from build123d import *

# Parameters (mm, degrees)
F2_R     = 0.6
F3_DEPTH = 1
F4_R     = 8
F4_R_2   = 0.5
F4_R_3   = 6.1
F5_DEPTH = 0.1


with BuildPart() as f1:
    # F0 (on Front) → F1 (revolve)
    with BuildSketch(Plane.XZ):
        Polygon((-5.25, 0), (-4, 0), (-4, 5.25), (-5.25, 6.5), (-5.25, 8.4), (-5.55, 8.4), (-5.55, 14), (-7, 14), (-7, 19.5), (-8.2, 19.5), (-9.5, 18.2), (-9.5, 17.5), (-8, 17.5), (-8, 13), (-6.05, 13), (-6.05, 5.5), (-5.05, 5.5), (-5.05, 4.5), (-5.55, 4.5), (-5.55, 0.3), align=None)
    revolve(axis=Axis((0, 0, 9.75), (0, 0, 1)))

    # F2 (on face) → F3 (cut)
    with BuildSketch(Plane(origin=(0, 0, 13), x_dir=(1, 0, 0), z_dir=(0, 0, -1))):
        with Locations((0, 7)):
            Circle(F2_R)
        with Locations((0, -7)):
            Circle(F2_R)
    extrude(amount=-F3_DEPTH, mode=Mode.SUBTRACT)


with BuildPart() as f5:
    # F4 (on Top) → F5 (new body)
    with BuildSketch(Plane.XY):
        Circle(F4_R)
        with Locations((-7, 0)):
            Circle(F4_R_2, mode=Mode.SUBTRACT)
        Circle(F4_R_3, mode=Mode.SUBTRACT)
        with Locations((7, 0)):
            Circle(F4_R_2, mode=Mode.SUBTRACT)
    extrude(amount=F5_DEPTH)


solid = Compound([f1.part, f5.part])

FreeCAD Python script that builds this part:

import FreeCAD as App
import Part
import Sketcher

V = App.Vector
Q = App.Units.Quantity


def add_polygon(sketch, points):
    """Adds a closed chain of lines whose ends are joined by coincident constraints."""
    first, n = sketch.GeometryCount, len(points)
    for a, b in zip(points, points[1:] + points[:1]):
        sketch.addGeometry(Part.LineSegment(App.Vector(*a, 0), App.Vector(*b, 0)), False)
    for i in range(n):
        sketch.addConstraint(Sketcher.Constraint("Coincident", first + i, 2, first + (i + 1) % n, 1))

doc = App.newDocument("Part")
params = doc.addObject("Spreadsheet::Sheet", "Params")
for row, (alias, value) in enumerate([
    ("sketch1_width", "1 mm"),
    ("sketch1_width2", "0.3 mm"),
    ("sketch1_width3", "1.2 mm"),
    ("sketch1_width4", "1.5 mm"),
    ("sketch1_width5", "0.5 mm"),
    ("revolution_angle", "360 deg"),
    ("sketch2_diameter", "1.2 mm"),
    ("pocket1_length", "1 mm"),
    ("sketch3_diameter", "16 mm"),
    ("sketch3_diameter2", "1 mm"),
    ("sketch3_diameter3", "12.2 mm"),
    ("pad1_length", "0.1 mm"),
], start=1):
    params.set(f"A{row}", alias)
    params.set(f"B{row}", "=" + value)
    params.setAlias(f"B{row}", alias)

body = doc.addObject("PartDesign::Body", "Body")

sketch1 = doc.addObject("Sketcher::SketchObject", "Sketch")
body.addObject(sketch1)
sketch1.AttachmentSupport = (doc.XZ_Plane, [""])
sketch1.MapMode = "FlatFace"
add_polygon(sketch1, [(-5.25, 0), (-4, 0), (-4, 5.25), (-5.25, 6.5), (-5.25, 8.4), (-5.55, 8.4), (-5.55, 14), (-7, 14), (-7, 19.5), (-8.2, 19.5), (-9.5, 18.2), (-9.5, 17.5), (-8, 17.5), (-8, 13), (-6.05, 13), (-6.05, 5.5), (-5.05, 5.5), (-5.05, 4.5), (-5.55, 4.5), (-5.55, 0.3)])
sketch1.addConstraint(Sketcher.Constraint("Horizontal", 0))
sketch1.addConstraint(Sketcher.Constraint("Vertical", 1))
sketch1.addConstraint(Sketcher.Constraint("Vertical", 3))
sketch1.addConstraint(Sketcher.Constraint("Horizontal", 4))
sketch1.addConstraint(Sketcher.Constraint("Vertical", 5))
sketch1.addConstraint(Sketcher.Constraint("Horizontal", 6))
sketch1.addConstraint(Sketcher.Constraint("Vertical", 7))
sketch1.addConstraint(Sketcher.Constraint("Horizontal", 8))
sketch1.addConstraint(Sketcher.Constraint("Vertical", 10))
sketch1.addConstraint(Sketcher.Constraint("Horizontal", 11))
sketch1.addConstraint(Sketcher.Constraint("Vertical", 12))
sketch1.addConstraint(Sketcher.Constraint("Horizontal", 13))
sketch1.addConstraint(Sketcher.Constraint("Vertical", 14))
sketch1.addConstraint(Sketcher.Constraint("Horizontal", 15))
sketch1.addConstraint(Sketcher.Constraint("Vertical", 16))
sketch1.addConstraint(Sketcher.Constraint("Horizontal", 17))
sketch1.addConstraint(Sketcher.Constraint("Vertical", 18))
sketch1.addConstraint(Sketcher.Constraint("PointOnObject", 0, 2, -1))
sketch1.addConstraint(Sketcher.Constraint("Perpendicular", 2, 9))
sketch1.addConstraint(Sketcher.Constraint("Perpendicular", 9, 19))
sketch1.addConstraint(Sketcher.Constraint("Vertical", 5, 2, 17, 2))
sketch1.addConstraint(Sketcher.Constraint("Vertical", 3, 2, 19, 2))
sketch1.addConstraint(Sketcher.Constraint("Equal", 15, 16))
sketch1.addConstraint(Sketcher.Constraint("DistanceX", 15, 1, 15, 2, 1.0))
sketch1.addConstraint(Sketcher.Constraint("Angle", 2, Q("135 deg")))
sketch1.addConstraint(Sketcher.Constraint("DistanceX", 4, 2, 4, 1, 0.3))
sketch1.addConstraint(Sketcher.Constraint("DistanceX", 8, 2, 8, 1, 1.2))
sketch1.addConstraint(Sketcher.Constraint("DistanceX", 11, 1, 11, 2, 1.5))
sketch1.addConstraint(Sketcher.Constraint("DistanceX", 17, 2, 17, 1, 0.5))
sketch1.addConstraint(Sketcher.Constraint("DistanceY", 3, 1, 3, 2, 1.9))
sketch1.addConstraint(Sketcher.Constraint("DistanceY", 5, 1, 5, 2, 5.6))
sketch1.addConstraint(Sketcher.Constraint("DistanceY", 7, 1, 7, 2, 5.5))
sketch1.addConstraint(Sketcher.Constraint("DistanceY", 10, 2, 10, 1, 0.7))
sketch1.addConstraint(Sketcher.Constraint("DistanceY", 12, 2, 12, 1, 4.5))
sketch1.addConstraint(Sketcher.Constraint("DistanceY", 14, 2, 14, 1, 7.5))
sketch1.addConstraint(Sketcher.Constraint("DistanceY", 18, 2, 18, 1, 4.2))
sketch1.addConstraint(Sketcher.Constraint("DistanceX", 0, 2, -1, 1, 4.0))
sketch1.addConstraint(Sketcher.Constraint("DistanceY", -1, 1, 5, 2, 14.0))
sketch1.addConstraint(Sketcher.Constraint("DistanceX", 6, 2, -1, 1, 7.0))
sketch1.addConstraint(Sketcher.Constraint("DistanceX", 0, 1, 0, 2, 1.25))
sketch1.setExpression("Constraints[43]", "Params.sketch1_width")
sketch1.setExpression("Constraints[45]", "Params.sketch1_width2")
sketch1.setExpression("Constraints[46]", "Params.sketch1_width3")
sketch1.setExpression("Constraints[47]", "Params.sketch1_width4")
sketch1.setExpression("Constraints[48]", "Params.sketch1_width5")
revolution = doc.addObject("PartDesign::Revolution", "Revolution")
body.addObject(revolution)
revolution.Profile = sketch1
revolution.ReferenceAxis = (sketch1, ["V_Axis"])
revolution.setExpression("Angle", "Params.revolution_angle")

sketch2 = doc.addObject("Sketcher::SketchObject", "Sketch001")
body.addObject(sketch2)
sketch2.AttachmentSupport = (doc.XY_Plane, [""])
sketch2.MapMode = "FlatFace"
sketch2.AttachmentOffset = App.Placement(V(0, 0, 13), App.Rotation())
sketch2.addGeometry(Part.Circle(V(0, -7, 0), V(0, 0, 1), 0.6), False)
sketch2.addGeometry(Part.Circle(V(0, 7, 0), V(0, 0, 1), 0.6), False)
sketch2.addConstraint(Sketcher.Constraint("Equal", 0, 1))
sketch2.addConstraint(Sketcher.Constraint("Symmetric", 0, 3, 1, 3, -1, 1))
sketch2.addConstraint(Sketcher.Constraint("PointOnObject", 0, 3, -2))
sketch2.addConstraint(Sketcher.Constraint("Diameter", 0, 1.2))
sketch2.addConstraint(Sketcher.Constraint("DistanceY", 0, 3, -1, 1, 7.0))
sketch2.setExpression("Constraints[3]", "Params.sketch2_diameter")
pocket1 = doc.addObject("PartDesign::Pocket", "Pocket")
body.addObject(pocket1)
pocket1.Profile = sketch2
pocket1.setExpression("Length", "Params.pocket1_length")
pocket1.Reversed = True
body2 = doc.addObject("PartDesign::Body", "Body001")

sketch3 = doc.addObject("Sketcher::SketchObject", "Sketch002")
body2.addObject(sketch3)
sketch3.AttachmentSupport = (doc.getObject("XY_Plane001"), [""])
sketch3.MapMode = "FlatFace"
sketch3.addGeometry(Part.Circle(V(0, 0, 0), V(0, 0, 1), 8), False)
sketch3.addGeometry(Part.Circle(V(-7, 0, 0), V(0, 0, 1), 0.5), False)
sketch3.addGeometry(Part.Circle(V(0, 0, 0), V(0, 0, 1), 6.1), False)
sketch3.addGeometry(Part.Circle(V(7, 0, 0), V(0, 0, 1), 0.5), False)
sketch3.addConstraint(Sketcher.Constraint("Coincident", 0, 3, -1, 1))
sketch3.addConstraint(Sketcher.Constraint("Coincident", 2, 3, -1, 1))
sketch3.addConstraint(Sketcher.Constraint("Equal", 1, 3))
sketch3.addConstraint(Sketcher.Constraint("Symmetric", 1, 3, 3, 3, -1, 1))
sketch3.addConstraint(Sketcher.Constraint("PointOnObject", 1, 3, -1))
sketch3.addConstraint(Sketcher.Constraint("Diameter", 0, 16.0))
sketch3.addConstraint(Sketcher.Constraint("Diameter", 1, 1.0))
sketch3.addConstraint(Sketcher.Constraint("Diameter", 2, 12.2))
sketch3.addConstraint(Sketcher.Constraint("DistanceX", 1, 3, -1, 1, 7.0))
sketch3.setExpression("Constraints[5]", "Params.sketch3_diameter")
sketch3.setExpression("Constraints[6]", "Params.sketch3_diameter2")
sketch3.setExpression("Constraints[7]", "Params.sketch3_diameter3")
pad1 = doc.addObject("PartDesign::Pad", "Pad")
body2.addObject(pad1)
pad1.Profile = sketch3
pad1.setExpression("Length", "Params.pad1_length")

doc.recompute()
